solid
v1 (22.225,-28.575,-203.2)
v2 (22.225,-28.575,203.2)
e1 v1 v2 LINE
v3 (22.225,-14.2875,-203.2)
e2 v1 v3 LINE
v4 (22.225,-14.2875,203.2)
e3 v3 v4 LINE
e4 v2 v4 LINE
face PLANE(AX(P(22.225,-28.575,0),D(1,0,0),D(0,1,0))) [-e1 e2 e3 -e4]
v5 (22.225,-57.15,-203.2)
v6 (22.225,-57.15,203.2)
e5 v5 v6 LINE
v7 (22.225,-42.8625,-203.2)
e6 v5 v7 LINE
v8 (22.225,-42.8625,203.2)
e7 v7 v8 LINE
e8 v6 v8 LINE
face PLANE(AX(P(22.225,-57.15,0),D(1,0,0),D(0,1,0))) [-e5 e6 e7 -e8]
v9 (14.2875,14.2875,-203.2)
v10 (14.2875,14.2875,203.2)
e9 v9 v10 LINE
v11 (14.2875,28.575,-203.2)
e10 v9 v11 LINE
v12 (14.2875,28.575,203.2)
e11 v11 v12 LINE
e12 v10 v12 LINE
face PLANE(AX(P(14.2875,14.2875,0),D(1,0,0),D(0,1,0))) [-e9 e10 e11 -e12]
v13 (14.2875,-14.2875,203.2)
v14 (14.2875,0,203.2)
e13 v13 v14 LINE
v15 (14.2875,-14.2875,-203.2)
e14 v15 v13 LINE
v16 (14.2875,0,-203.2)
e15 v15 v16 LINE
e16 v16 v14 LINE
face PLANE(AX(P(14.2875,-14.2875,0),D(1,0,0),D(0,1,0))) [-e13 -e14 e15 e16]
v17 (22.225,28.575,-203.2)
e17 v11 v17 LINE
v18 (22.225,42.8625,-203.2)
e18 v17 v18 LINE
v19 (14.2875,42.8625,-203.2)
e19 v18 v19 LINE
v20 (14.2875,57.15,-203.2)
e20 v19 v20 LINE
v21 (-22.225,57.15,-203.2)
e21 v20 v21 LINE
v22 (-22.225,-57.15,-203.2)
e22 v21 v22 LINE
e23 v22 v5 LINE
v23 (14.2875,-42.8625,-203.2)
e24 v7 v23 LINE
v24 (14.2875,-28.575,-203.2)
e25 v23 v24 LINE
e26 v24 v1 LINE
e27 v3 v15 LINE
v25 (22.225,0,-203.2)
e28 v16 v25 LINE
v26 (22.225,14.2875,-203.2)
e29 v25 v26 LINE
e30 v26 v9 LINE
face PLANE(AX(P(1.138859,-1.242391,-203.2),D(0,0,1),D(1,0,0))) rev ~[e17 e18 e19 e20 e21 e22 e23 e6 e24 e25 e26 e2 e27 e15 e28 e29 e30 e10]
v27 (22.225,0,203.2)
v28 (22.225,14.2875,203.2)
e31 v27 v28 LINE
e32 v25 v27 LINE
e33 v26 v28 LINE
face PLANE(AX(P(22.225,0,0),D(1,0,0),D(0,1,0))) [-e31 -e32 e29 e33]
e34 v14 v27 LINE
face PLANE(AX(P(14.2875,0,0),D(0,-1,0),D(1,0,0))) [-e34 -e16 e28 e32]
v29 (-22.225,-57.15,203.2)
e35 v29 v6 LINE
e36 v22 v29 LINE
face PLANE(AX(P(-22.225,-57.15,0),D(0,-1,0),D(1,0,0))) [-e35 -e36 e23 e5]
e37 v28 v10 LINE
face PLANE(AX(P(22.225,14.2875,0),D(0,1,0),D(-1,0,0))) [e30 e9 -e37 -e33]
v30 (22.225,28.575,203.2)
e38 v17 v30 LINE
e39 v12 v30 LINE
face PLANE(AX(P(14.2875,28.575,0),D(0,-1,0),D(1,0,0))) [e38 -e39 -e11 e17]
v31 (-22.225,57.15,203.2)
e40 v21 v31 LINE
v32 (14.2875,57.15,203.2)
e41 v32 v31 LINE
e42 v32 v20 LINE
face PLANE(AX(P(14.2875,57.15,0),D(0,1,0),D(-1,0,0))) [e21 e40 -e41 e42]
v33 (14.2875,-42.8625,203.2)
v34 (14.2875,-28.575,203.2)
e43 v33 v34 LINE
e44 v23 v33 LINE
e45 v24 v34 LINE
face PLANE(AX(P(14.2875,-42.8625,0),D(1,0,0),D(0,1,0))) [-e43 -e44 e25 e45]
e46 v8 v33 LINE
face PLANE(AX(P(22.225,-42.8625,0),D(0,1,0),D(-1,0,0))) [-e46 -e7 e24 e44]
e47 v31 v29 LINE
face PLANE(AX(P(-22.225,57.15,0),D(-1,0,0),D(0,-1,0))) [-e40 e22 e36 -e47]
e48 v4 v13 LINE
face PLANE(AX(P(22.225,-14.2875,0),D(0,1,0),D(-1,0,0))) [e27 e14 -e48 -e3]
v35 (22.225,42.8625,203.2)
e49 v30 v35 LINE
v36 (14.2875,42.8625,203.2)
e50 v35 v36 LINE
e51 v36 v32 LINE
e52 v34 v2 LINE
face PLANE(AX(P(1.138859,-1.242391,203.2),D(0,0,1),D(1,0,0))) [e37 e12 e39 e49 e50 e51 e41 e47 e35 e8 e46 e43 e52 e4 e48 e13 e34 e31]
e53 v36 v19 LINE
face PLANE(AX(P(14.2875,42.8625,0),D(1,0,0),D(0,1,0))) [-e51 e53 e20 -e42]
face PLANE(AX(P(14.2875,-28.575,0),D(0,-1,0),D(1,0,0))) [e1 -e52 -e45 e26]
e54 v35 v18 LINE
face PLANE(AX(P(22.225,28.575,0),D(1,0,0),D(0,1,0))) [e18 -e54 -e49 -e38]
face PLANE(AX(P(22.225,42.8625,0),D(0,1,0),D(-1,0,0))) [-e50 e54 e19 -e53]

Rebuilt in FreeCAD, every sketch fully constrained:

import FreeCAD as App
import Part
import Sketcher

V = App.Vector
Q = App.Units.Quantity


def add_polygon(sketch, points):
    """Adds a closed chain of lines whose ends are joined by coincident constraints."""
    first, n = sketch.GeometryCount, len(points)
    for a, b in zip(points, points[1:] + points[:1]):
        sketch.addGeometry(Part.LineSegment(App.Vector(*a, 0), App.Vector(*b, 0)), False)
    for i in range(n):
        sketch.addConstraint(Sketcher.Constraint("Coincident", first + i, 2, first + (i + 1) % n, 1))

doc = App.newDocument("Part")
body = doc.addObject("PartDesign::Body", "Body")

sketch1 = body.newObject("Sketcher::SketchObject", "Sketch")
sketch1.AttachmentSupport = (doc.getObject("XY_Plane"), [""])
sketch1.MapMode = "FlatFace"
add_polygon(sketch1, [(14.2875, 57.15), (-22.225, 57.15), (-22.225, -57.15), (22.225, -57.15), (22.225, -42.8625), (14.2875, -42.8625), (14.2875, -28.575), (22.225, -28.575), (22.225, -14.2875), (14.2875, -14.2875), (14.2875, 0), (22.225, 0), (22.225, 14.2875), (14.2875, 14.2875), (14.2875, 28.575), (22.225, 28.575), (22.225, 42.8625), (14.2875, 42.8625)])
sketch1.addConstraint(Sketcher.Constraint("Horizontal", 0))
sketch1.addConstraint(Sketcher.Constraint("Vertical", 1))
sketch1.addConstraint(Sketcher.Constraint("Horizontal", 2))
sketch1.addConstraint(Sketcher.Constraint("Vertical", 3))
sketch1.addConstraint(Sketcher.Constraint("Horizontal", 4))
sketch1.addConstraint(Sketcher.Constraint("Vertical", 5))
sketch1.addConstraint(Sketcher.Constraint("Horizontal", 6))
sketch1.addConstraint(Sketcher.Constraint("Vertical", 7))
sketch1.addConstraint(Sketcher.Constraint("Horizontal", 8))
sketch1.addConstraint(Sketcher.Constraint("Vertical", 9))
sketch1.addConstraint(Sketcher.Constraint("Horizontal", 10))
sketch1.addConstraint(Sketcher.Constraint("Vertical", 11))
sketch1.addConstraint(Sketcher.Constraint("Horizontal", 12))
sketch1.addConstraint(Sketcher.Constraint("Vertical", 13))
sketch1.addConstraint(Sketcher.Constraint("Horizontal", 14))
sketch1.addConstraint(Sketcher.Constraint("Vertical", 15))
sketch1.addConstraint(Sketcher.Constraint("Horizontal", 16))
sketch1.addConstraint(Sketcher.Constraint("Vertical", 17))
sketch1.addConstraint(Sketcher.Constraint("Symmetric", 0, 2, 2, 2, -1, 1))
sketch1.addConstraint(Sketcher.Constraint("Symmetric", 7, 2, 11, 2, -1))
sketch1.addConstraint(Sketcher.Constraint("Symmetric", 5, 2, 13, 2, -1))
sketch1.addConstraint(Sketcher.Constraint("Symmetric", 3, 2, 15, 2, -1))
sketch1.addConstraint(Sketcher.Constraint("PointOnObject", 9, 2, -1))
sketch1.addConstraint(Sketcher.Constraint("Vertical", 3, 2, 6, 2))
sketch1.addConstraint(Sketcher.Constraint("Vertical", 5, 2, 8, 2))
sketch1.addConstraint(Sketcher.Constraint("Vertical", 13, 2, 16, 2))
sketch1.addConstraint(Sketcher.Constraint("Equal", 3, 5))
sketch1.addConstraint(Sketcher.Constraint("Equal", 5, 7))
sketch1.addConstraint(Sketcher.Constraint("Equal", 7, 9))
sketch1.addConstraint(Sketcher.Constraint("DistanceY", 1, 2, 1, 1, Q("4.5 in")))
sketch1.addConstraint(Sketcher.Constraint("DistanceX", 2, 1, 2, 2, Q("1.75 in")))
sketch1.addConstraint(Sketcher.Constraint("DistanceX", 0, 2, 0, 1, Q("1.4375 in")))
pad1 = body.newObject("PartDesign::Pad", "Pad")
pad1.Profile = sketch1
pad1.Length = Q("16 in")
pad1.Midplane = True

doc.recompute()
